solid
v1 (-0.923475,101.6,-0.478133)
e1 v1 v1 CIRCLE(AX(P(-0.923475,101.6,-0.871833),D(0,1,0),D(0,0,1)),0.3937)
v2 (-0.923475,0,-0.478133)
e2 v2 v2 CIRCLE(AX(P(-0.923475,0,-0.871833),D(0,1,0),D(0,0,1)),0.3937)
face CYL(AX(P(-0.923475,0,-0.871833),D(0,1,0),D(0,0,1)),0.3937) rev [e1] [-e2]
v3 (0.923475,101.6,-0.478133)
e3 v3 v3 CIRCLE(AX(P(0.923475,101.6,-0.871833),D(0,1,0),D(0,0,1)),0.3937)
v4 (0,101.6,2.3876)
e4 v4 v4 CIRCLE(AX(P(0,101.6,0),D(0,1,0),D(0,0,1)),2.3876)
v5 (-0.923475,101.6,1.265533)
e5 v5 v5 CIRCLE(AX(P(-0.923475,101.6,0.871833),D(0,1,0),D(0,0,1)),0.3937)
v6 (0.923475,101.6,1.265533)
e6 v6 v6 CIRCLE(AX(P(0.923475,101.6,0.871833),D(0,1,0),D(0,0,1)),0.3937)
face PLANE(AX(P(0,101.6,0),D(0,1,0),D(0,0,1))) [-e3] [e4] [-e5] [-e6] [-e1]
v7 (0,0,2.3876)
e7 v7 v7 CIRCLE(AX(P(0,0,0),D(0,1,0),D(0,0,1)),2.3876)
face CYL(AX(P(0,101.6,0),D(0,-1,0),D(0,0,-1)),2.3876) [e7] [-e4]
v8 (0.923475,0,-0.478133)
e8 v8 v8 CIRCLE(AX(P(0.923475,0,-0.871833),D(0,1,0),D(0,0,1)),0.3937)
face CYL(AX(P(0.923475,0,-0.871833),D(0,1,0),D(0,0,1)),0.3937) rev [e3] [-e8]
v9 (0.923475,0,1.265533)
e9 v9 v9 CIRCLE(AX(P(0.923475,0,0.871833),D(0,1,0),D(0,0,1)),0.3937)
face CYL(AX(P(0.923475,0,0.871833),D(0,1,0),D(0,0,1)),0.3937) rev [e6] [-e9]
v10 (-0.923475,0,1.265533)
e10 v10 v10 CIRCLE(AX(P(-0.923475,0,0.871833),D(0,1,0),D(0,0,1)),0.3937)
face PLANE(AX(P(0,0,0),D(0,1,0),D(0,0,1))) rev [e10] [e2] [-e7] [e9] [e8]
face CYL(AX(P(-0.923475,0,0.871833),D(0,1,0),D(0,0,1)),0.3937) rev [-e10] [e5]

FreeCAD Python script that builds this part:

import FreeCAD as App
import Part
import Sketcher
from FreeCAD import Vector
Q = App.Units.Quantity

doc = App.newDocument("Part")
params = doc.addObject("Spreadsheet::Sheet", "Params")
for row, (alias, value) in enumerate([
    ("sketch1_diameter", "0.188 in"),
    ("pad1_length", "4 in"),
    ("sketch2_diameter", "0.031 in"),
], start=1):
    params.set(f"A{row}", alias)
    params.set(f"B{row}", "=" + value)
    params.setAlias(f"B{row}", alias)

body = doc.addObject("PartDesign::Body", "Body")

# Sketch on XZ plane
sketch1 = doc.addObject("Sketcher::SketchObject", "Sketch")
body.addObject(sketch1)
sketch1.AttachmentSupport = (doc.XZ_Plane, [""])
sketch1.MapMode = "FlatFace"
sketch1.addGeometry(Part.Circle(Vector(0, 0, 0), Vector(0, 0, 1), 2.4), False)
sketch1.addConstraint([
    Sketcher.Constraint("Coincident", 0, 3, -1, 1),
    Sketcher.Constraint("Diameter", 0, Q("0.188 in")),
])
sketch1.setExpression("Constraints[1]", "Params.sketch1_diameter")
pad1 = doc.addObject("PartDesign::Pad", "Pad")
body.addObject(pad1)
pad1.Profile = sketch1
pad1.setExpression("Length", "Params.pad1_length")
pad1.Reversed = True

# Sketch on XZ plane
sketch2 = doc.addObject("Sketcher::SketchObject", "Sketch001")
body.addObject(sketch2)
sketch2.AttachmentSupport = (doc.XZ_Plane, [""])
sketch2.MapMode = "FlatFace"
sketch2.AttachmentOffset = App.Placement(Vector(0, 0, -4 * 25.4), App.Rotation())
sketch2.addGeometry([
    Part.Circle(Vector(-0.92, -0.87, 0), Vector(0, 0, 1), 0.39),
    Part.Circle(Vector(0.92, -0.87, 0), Vector(0, 0, 1), 0.39),
    Part.Circle(Vector(0.92, 0.87, 0), Vector(0, 0, 1), 0.39),
    Part.Circle(Vector(-0.92, 0.87, 0), Vector(0, 0, 1), 0.39),
], False)
sketch2.addConstraint([
    Sketcher.Constraint("Equal", 0, 1),
    Sketcher.Constraint("Equal", 1, 2),
    Sketcher.Constraint("Equal", 2, 3),
    Sketcher.Constraint("Symmetric", 0, 3, 2, 3, -1, 1),
    Sketcher.Constraint("Symmetric", 1, 3, 3, 3, -1, 1),
    Sketcher.Constraint("Symmetric", 0, 3, 1, 3, -2),
    Sketcher.Constraint("Diameter", 0, Q("0.031 in")),
    Sketcher.Constraint("DistanceX", 0, 3, 1, 3, Q("1.84695 mm")),
    Sketcher.Constraint("DistanceY", 0, 3, -1, 1, Q("0.871833 mm")),
])
sketch2.setExpression("Constraints[6]", "Params.sketch2_diameter")
pocket1 = doc.addObject("PartDesign::Pocket", "Pocket")
body.addObject(pocket1)
pocket1.Profile = sketch2
pocket1.Type = "ThroughAll"
pocket1.Reversed = True

doc.recompute()
